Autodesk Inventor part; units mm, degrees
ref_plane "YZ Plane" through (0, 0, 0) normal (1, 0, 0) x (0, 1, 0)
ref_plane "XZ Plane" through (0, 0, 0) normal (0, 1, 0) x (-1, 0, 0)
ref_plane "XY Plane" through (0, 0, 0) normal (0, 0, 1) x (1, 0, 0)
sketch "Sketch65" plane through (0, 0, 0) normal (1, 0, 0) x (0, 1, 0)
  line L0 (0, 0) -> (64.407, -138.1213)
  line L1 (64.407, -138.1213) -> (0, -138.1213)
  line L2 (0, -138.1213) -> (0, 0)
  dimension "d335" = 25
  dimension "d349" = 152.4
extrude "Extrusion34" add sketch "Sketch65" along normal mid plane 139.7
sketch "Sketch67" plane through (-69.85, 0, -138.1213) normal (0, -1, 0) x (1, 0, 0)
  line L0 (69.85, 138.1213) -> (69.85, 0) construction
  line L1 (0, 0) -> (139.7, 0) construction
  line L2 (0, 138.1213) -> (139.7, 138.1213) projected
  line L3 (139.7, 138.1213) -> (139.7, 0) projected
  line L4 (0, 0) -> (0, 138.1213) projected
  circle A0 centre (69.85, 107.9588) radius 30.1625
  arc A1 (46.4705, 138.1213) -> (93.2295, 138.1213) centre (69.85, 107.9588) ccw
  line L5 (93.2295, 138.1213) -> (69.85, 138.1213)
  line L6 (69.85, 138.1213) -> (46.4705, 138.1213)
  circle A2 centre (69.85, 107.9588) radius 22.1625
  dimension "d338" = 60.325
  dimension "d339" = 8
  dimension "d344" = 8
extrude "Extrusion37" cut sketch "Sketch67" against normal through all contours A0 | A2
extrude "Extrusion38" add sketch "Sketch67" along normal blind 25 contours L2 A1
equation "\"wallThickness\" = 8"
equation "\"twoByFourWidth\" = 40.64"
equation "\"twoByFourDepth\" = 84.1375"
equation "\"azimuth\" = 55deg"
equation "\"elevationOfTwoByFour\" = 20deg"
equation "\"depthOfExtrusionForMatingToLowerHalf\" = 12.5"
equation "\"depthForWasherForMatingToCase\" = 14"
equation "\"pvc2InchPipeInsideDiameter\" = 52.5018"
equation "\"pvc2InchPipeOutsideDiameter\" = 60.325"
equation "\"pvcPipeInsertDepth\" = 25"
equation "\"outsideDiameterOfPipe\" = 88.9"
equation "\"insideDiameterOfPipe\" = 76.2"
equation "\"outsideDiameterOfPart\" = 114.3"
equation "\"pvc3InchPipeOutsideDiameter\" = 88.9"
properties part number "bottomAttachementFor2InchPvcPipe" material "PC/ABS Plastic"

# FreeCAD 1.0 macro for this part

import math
import FreeCAD as App
import Part
import Sketcher

V = App.Vector
Q = App.Units.Quantity

doc = App.newDocument("Part")
body = doc.addObject("PartDesign::Body", "Body")

# Sketch on YZ plane
sketch1 = body.newObject("Sketcher::SketchObject", "Sketch")
sketch1.AttachmentSupport = (doc.getObject("YZ_Plane"), [""])
sketch1.MapMode = "FlatFace"
sketch1.addGeometry(Part.LineSegment(V(64.407, -138.1213, 0), V(0, 0, 0)), False)
sketch1.addGeometry(Part.LineSegment(V(0, 0, 0), V(0, -138.1213, 0)), False)
sketch1.addGeometry(Part.LineSegment(V(0, -138.1213, 0), V(64.407, -138.1213, 0)), False)
sketch1.addConstraint(Sketcher.Constraint("Coincident", 0, 2, 1, 1))
sketch1.addConstraint(Sketcher.Constraint("Coincident", 1, 2, 2, 1))
sketch1.addConstraint(Sketcher.Constraint("Coincident", 2, 2, 0, 1))
sketch1.addConstraint(Sketcher.Constraint("Vertical", 1))
sketch1.addConstraint(Sketcher.Constraint("Horizontal", 2))
sketch1.addConstraint(Sketcher.Constraint("Coincident", 0, 2, -1, 1))
sketch1.addConstraint(Sketcher.Constraint("Distance", 0, Q("6 in")))
sketch1.addConstraint(Sketcher.Constraint("Angle", 0, Q("115 deg")))
pad1 = body.newObject("PartDesign::Pad", "Pad")
pad1.Profile = sketch1
pad1.Length = Q("5.5 in")
pad1.Midplane = True

# Sketch on XZ plane
sketch2 = body.newObject("Sketcher::SketchObject", "Sketch001")
sketch2.AttachmentSupport = (doc.getObject("XZ_Plane"), [""])
sketch2.MapMode = "FlatFace"
sketch2.addGeometry(Part.Circle(V(0, -30.1625, 0), V(0, 0, 1), 30.1625), False)
sketch2.addConstraint(Sketcher.Constraint("PointOnObject", 0, 3, -2))
sketch2.addConstraint(Sketcher.Constraint("Diameter", 0, Q("2.375 in")))
sketch2.addConstraint(Sketcher.Constraint("DistanceY", 0, 3, -1, 1, Q("1.1875 in")))
pocket1 = body.newObject("PartDesign::Pocket", "Pocket")
pocket1.Profile = sketch2
pocket1.Type = "ThroughAll"

# Sketch on XZ plane
sketch3 = body.newObject("Sketcher::SketchObject", "Sketch002")
sketch3.AttachmentSupport = (doc.getObject("XZ_Plane"), [""])
sketch3.MapMode = "FlatFace"
sketch3.addGeometry(Part.LineSegment(V(0, 0, 0), V(-23.3795, 0, 0)), False)
sketch3.addGeometry(Part.ArcOfCircle(Part.Circle(V(0, -30.1625, 0), V(0, 0, 1), 38.162513), math.radians(127.779912), math.radians(412.220088)), False)
sketch3.addGeometry(Part.LineSegment(V(23.3795, 0, 0), V(0, 0, 0)), False)
sketch3.addGeometry(Part.Circle(V(0, -30.1625, 0), V(0, 0, 1), 30.1625), False)
sketch3.addConstraint(Sketcher.Constraint("Coincident", 0, 2, 1, 1))
sketch3.addConstraint(Sketcher.Constraint("Coincident", 1, 2, 2, 1))
sketch3.addConstraint(Sketcher.Constraint("Coincident", 2, 2, 0, 1))
sketch3.addConstraint(Sketcher.Constraint("Horizontal", 0))
sketch3.addConstraint(Sketcher.Constraint("Horizontal", 2))
sketch3.addConstraint(Sketcher.Constraint("Coincident", 2, 2, -1, 1))
sketch3.addConstraint(Sketcher.Constraint("Coincident", 3, 3, 1, 3))
sketch3.addConstraint(Sketcher.Constraint("PointOnObject", 1, 3, -2))
sketch3.addConstraint(Sketcher.Constraint("Diameter", 3, Q("2.375 in")))
sketch3.addConstraint(Sketcher.Constraint("Radius", 1, 38.1625))
sketch3.addConstraint(Sketcher.Constraint("DistanceY", 1, 3, -1, 1, Q("1.1875 in")))
pad2 = body.newObject("PartDesign::Pad", "Pad001")
pad2.Profile = sketch3
pad2.Length = 25

doc.recompute()
